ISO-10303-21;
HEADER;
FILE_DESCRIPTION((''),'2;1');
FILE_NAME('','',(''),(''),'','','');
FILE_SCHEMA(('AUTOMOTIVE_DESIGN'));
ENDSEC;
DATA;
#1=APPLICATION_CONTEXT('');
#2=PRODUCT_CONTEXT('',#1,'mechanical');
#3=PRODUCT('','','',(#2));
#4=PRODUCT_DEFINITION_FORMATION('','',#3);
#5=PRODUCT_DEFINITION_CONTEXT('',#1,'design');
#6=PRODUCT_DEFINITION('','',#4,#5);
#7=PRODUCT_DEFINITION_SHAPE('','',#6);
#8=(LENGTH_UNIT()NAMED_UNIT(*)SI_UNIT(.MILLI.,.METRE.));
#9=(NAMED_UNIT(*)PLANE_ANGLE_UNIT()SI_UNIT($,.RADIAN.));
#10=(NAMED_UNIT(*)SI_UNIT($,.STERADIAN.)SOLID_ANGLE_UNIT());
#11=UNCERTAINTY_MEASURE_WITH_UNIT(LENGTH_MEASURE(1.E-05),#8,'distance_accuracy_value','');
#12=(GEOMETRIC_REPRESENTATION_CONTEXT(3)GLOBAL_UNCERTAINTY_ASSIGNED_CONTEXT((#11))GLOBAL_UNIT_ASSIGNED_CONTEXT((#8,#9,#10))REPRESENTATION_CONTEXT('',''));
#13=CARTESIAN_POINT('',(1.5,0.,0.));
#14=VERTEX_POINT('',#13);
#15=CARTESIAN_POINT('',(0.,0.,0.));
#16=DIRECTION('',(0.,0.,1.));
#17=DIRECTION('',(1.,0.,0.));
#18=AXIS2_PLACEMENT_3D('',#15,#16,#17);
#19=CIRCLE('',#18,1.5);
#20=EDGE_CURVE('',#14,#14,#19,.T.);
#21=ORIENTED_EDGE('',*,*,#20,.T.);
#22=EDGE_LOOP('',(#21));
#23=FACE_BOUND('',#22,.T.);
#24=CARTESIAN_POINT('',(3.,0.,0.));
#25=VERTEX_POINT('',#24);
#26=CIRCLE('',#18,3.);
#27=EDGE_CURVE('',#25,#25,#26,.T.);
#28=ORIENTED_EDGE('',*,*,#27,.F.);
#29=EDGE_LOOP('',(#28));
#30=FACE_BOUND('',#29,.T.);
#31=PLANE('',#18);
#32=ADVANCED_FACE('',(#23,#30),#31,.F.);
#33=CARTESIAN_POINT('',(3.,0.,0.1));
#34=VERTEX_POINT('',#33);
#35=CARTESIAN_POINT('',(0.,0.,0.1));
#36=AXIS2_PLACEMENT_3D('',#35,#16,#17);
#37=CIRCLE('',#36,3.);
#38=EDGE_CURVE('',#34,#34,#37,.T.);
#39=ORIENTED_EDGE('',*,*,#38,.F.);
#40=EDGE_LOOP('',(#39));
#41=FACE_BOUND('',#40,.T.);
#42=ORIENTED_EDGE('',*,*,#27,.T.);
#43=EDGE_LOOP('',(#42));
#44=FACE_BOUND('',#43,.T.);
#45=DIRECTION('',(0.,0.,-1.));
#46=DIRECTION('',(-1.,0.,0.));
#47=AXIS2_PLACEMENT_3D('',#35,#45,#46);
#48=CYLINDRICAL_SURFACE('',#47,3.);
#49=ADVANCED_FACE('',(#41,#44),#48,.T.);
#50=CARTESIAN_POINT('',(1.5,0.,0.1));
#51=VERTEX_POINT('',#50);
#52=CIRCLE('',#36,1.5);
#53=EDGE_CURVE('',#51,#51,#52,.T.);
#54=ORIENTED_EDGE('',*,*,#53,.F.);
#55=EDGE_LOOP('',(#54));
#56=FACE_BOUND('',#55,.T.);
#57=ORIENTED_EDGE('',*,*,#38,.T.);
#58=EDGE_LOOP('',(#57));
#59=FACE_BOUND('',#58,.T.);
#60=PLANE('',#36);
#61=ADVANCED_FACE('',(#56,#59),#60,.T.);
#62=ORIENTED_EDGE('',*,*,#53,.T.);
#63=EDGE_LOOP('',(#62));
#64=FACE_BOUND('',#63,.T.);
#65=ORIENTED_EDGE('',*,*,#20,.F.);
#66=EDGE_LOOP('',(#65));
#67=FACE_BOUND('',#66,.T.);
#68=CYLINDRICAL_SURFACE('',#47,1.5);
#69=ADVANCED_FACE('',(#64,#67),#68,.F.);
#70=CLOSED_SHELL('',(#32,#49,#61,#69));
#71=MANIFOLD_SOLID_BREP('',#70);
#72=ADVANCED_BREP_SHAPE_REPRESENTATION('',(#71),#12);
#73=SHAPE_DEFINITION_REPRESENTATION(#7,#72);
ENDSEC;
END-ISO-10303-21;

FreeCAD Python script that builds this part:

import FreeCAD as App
import Part
import Sketcher
Q = App.Units.Quantity

doc = App.newDocument("Part")
params = doc.addObject("Spreadsheet::Sheet", "Params")
for row, (alias, value) in enumerate([
    ("sketch1_diameter", "6 mm"),
    ("sketch1_diameter2", "3 mm"),
    ("pad1_length", "0.1 mm"),
], start=1):
    params.set(f"A{row}", alias)
    params.set(f"B{row}", "=" + value)
    params.setAlias(f"B{row}", alias)

body = doc.addObject("PartDesign::Body", "Body")

# Sketch on XY plane
sketch1 = body.newObject("Sketcher::SketchObject", "Sketch")
sketch1.AttachmentSupport = (doc.getObject("XY_Plane"), [""])
sketch1.MapMode = "FlatFace"
sketch1.addGeometry(Part.Circle(App.Vector(0, 0, 0), App.Vector(0, 0, 1), 3), False)
sketch1.addGeometry(Part.Circle(App.Vector(0, 0, 0), App.Vector(0, 0, 1), 1.5), False)
sketch1.addConstraint(Sketcher.Constraint("Coincident", 0, 3, -1, 1))
sketch1.addConstraint(Sketcher.Constraint("Coincident", 1, 3, -1, 1))
sketch1.addConstraint(Sketcher.Constraint("Diameter", 0, Q("6 mm")))
sketch1.addConstraint(Sketcher.Constraint("Diameter", 1, Q("3 mm")))
sketch1.setExpression("Constraints[2]", "Params.sketch1_diameter")
sketch1.setExpression("Constraints[3]", "Params.sketch1_diameter2")
pad1 = body.newObject("PartDesign::Pad", "Pad")
pad1.Profile = sketch1
pad1.setExpression("Length", "Params.pad1_length")

doc.recompute()
